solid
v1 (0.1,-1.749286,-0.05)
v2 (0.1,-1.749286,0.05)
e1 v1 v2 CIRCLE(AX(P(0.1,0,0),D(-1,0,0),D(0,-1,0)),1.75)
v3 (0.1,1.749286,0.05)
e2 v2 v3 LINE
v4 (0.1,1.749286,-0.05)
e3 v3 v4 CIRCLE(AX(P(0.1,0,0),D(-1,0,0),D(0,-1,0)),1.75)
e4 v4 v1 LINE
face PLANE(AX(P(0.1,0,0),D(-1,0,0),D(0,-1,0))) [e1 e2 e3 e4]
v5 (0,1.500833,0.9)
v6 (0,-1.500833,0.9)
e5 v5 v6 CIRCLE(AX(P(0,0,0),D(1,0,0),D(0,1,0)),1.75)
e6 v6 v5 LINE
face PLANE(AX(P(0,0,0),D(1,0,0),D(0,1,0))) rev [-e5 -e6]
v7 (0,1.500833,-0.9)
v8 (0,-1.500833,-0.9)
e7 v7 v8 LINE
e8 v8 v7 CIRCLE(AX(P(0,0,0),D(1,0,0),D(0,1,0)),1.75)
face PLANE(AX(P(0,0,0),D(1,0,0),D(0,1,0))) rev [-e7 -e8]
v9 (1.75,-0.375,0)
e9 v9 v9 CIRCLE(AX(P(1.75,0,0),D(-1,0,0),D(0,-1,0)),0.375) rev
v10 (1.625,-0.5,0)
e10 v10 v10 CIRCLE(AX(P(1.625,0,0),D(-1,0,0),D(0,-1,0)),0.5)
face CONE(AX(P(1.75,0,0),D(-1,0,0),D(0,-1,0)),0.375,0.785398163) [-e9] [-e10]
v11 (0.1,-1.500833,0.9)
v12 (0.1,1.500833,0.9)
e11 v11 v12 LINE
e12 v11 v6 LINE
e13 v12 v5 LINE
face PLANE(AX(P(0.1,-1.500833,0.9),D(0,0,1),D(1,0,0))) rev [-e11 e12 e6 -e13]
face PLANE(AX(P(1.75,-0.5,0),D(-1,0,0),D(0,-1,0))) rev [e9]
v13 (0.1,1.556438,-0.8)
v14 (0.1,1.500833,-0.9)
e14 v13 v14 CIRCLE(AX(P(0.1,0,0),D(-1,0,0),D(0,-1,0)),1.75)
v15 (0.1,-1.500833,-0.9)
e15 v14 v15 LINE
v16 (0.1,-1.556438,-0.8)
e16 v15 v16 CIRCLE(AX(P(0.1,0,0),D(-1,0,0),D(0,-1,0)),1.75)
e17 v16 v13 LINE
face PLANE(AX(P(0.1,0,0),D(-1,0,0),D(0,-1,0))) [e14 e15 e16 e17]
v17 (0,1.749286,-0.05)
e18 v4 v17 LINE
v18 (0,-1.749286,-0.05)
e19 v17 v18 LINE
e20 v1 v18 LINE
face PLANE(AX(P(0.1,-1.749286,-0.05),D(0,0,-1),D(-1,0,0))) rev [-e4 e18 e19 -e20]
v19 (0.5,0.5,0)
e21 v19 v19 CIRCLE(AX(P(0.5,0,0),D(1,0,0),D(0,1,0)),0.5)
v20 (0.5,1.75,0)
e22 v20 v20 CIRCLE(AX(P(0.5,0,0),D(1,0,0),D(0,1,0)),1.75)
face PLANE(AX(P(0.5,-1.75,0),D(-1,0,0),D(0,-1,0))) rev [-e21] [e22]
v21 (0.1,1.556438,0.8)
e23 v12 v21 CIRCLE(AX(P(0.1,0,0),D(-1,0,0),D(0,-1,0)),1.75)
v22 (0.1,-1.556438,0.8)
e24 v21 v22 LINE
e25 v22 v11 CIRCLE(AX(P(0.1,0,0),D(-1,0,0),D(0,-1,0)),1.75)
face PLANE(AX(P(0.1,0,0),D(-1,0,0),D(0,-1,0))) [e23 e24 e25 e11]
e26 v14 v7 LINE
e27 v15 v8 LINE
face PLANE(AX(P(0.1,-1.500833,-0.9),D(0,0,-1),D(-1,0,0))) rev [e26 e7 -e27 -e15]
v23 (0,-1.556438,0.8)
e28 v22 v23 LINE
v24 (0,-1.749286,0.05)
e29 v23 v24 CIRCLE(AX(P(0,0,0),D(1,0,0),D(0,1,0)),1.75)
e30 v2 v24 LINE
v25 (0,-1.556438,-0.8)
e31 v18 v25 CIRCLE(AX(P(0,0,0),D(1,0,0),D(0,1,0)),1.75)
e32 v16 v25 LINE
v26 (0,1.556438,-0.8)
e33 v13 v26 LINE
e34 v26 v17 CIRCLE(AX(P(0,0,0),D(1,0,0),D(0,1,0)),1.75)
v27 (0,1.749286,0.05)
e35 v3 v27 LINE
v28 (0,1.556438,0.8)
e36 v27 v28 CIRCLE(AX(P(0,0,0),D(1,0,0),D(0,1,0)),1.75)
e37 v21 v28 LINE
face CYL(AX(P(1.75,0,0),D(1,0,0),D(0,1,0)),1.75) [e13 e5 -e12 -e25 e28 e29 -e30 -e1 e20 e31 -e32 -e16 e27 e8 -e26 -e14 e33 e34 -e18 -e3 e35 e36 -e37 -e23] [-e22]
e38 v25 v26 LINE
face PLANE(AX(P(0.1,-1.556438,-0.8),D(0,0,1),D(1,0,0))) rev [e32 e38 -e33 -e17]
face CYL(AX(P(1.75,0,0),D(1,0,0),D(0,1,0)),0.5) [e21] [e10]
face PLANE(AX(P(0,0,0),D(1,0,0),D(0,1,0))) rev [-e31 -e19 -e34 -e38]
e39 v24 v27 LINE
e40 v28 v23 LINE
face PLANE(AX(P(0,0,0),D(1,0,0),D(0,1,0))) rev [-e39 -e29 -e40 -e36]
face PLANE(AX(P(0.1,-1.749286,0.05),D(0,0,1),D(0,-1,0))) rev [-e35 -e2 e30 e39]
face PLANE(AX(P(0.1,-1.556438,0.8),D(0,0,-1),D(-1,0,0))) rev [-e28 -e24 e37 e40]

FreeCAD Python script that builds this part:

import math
import FreeCAD as App
import Part
import Sketcher


def edges_at(feature, points):
    """Names of the edges that pass closest to the given points."""
    edges = feature.Shape.Edges
    near = lambda p: min(range(len(edges)), key=lambda i: edges[i].distToShape(Part.Vertex(*p))[0])
    return sorted({f"Edge{near(p) + 1}" for p in points})

doc = App.newDocument("Part")
body = doc.addObject("PartDesign::Body", "Body")

sketch1 = body.newObject("Sketcher::SketchObject", "Sketch")
sketch1.AttachmentSupport = (doc.getObject("XY_Plane"), [""])
sketch1.MapMode = "FlatFace"
sketch1.addGeometry(Part.LineSegment(App.Vector(0, 0, 0), App.Vector(0, -1.8, 0)), False)
sketch1.addGeometry(Part.LineSegment(App.Vector(0, -1.8, 0), App.Vector(0.5, -1.8, 0)), False)
sketch1.addGeometry(Part.LineSegment(App.Vector(0.5, -1.8, 0), App.Vector(0.5, -0.5, 0)), False)
sketch1.addGeometry(Part.LineSegment(App.Vector(0.5, -0.5, 0), App.Vector(1.8, -0.5, 0)), False)
sketch1.addGeometry(Part.LineSegment(App.Vector(1.8, -0.5, 0), App.Vector(1.8, 0, 0)), False)
sketch1.addGeometry(Part.LineSegment(App.Vector(1.8, 0, 0), App.Vector(0, 0, 0)), False)
sketch1.addConstraint(Sketcher.Constraint("Coincident", 0, 2, 1, 1))
sketch1.addConstraint(Sketcher.Constraint("Coincident", 1, 2, 2, 1))
sketch1.addConstraint(Sketcher.Constraint("Coincident", 2, 2, 3, 1))
sketch1.addConstraint(Sketcher.Constraint("Coincident", 3, 2, 4, 1))
sketch1.addConstraint(Sketcher.Constraint("Coincident", 4, 2, 5, 1))
sketch1.addConstraint(Sketcher.Constraint("Coincident", 5, 2, 0, 1))
sketch1.addConstraint(Sketcher.Constraint("Vertical", 0))
sketch1.addConstraint(Sketcher.Constraint("Horizontal", 1))
sketch1.addConstraint(Sketcher.Constraint("Vertical", 2))
sketch1.addConstraint(Sketcher.Constraint("Horizontal", 3))
sketch1.addConstraint(Sketcher.Constraint("Vertical", 4))
sketch1.addConstraint(Sketcher.Constraint("Horizontal", 5))
sketch1.addConstraint(Sketcher.Constraint("Coincident", 5, 2, -1, 1))
sketch1.addConstraint(Sketcher.Constraint("Equal", 5, 0))
sketch1.addConstraint(Sketcher.Constraint("Equal", 3, 2))
sketch1.addConstraint(Sketcher.Constraint("DistanceX", 1, 1, 1, 2, 0.5))
sketch1.addConstraint(Sketcher.Constraint("DistanceX", 3, 1, 3, 2, 1.25))
revolution = body.newObject("PartDesign::Revolution", "Revolution")
revolution.Profile = sketch1
revolution.ReferenceAxis = (sketch1, ["H_Axis"])
revolution.Angle = 360
doc.recompute()

chamfer = body.newObject("PartDesign::Chamfer", "Chamfer")
chamfer.Base = (revolution, edges_at(revolution, [(1.75, 0.5, 0)]))
chamfer.Size = 0.125

sketch2 = body.newObject("Sketcher::SketchObject", "Sketch001")
sketch2.AttachmentSupport = (doc.getObject("YZ_Plane"), [""])
sketch2.MapMode = "FlatFace"
sketch2.addGeometry(Part.LineSegment(App.Vector(1.75, -0.05, 0), App.Vector(-1.75, -0.05, 0)), False)
sketch2.addGeometry(Part.ArcOfCircle(Part.Circle(App.Vector(0, 0, 0), App.Vector(0, 0, 1), 1.75), math.radians(178.36), math.radians(181.64)), False)
sketch2.addGeometry(Part.LineSegment(App.Vector(-1.75, 0.05, 0), App.Vector(1.75, 0.05, 0)), False)
sketch2.addGeometry(Part.ArcOfCircle(Part.Circle(App.Vector(0, 0, 0), App.Vector(0, 0, 1), 1.75), math.radians(-1.64), math.radians(1.64)), False)
sketch2.addGeometry(Part.LineSegment(App.Vector(1.56, 0.8, 0), App.Vector(-1.56, 0.8, 0)), False)
sketch2.addGeometry(Part.ArcOfCircle(Part.Circle(App.Vector(0, 0, 0), App.Vector(0, 0, 1), 1.75), math.radians(149.05), math.radians(152.8)), False)
sketch2.addGeometry(Part.LineSegment(App.Vector(-1.5, 0.9, 0), App.Vector(1.5, 0.9, 0)), False)
sketch2.addGeometry(Part.ArcOfCircle(Part.Circle(App.Vector(0, 0, 0), App.Vector(0, 0, 1), 1.75), math.radians(27.2), math.radians(30.95)), False)
sketch2.addGeometry(Part.LineSegment(App.Vector(1.5, -0.9, 0), App.Vector(-1.5, -0.9, 0)), False)
sketch2.addGeometry(Part.ArcOfCircle(Part.Circle(App.Vector(0, 0, 0), App.Vector(0, 0, 1), 1.75), math.radians(-152.8), math.radians(-149.05)), False)
sketch2.addGeometry(Part.LineSegment(App.Vector(-1.56, -0.8, 0), App.Vector(1.56, -0.8, 0)), False)
sketch2.addGeometry(Part.ArcOfCircle(Part.Circle(App.Vector(0, 0, 0), App.Vector(0, 0, 1), 1.75), math.radians(-30.95), math.radians(-27.2)), False)
sketch2.addConstraint(Sketcher.Constraint("Coincident", 0, 2, 1, 2))
sketch2.addConstraint(Sketcher.Constraint("Coincident", 1, 1, 2, 1))
sketch2.addConstraint(Sketcher.Constraint("Coincident", 2, 2, 3, 2))
sketch2.addConstraint(Sketcher.Constraint("Coincident", 3, 1, 0, 1))
sketch2.addConstraint(Sketcher.Constraint("Coincident", 4, 2, 5, 2))
sketch2.addConstraint(Sketcher.Constraint("Coincident", 5, 1, 6, 1))
sketch2.addConstraint(Sketcher.Constraint("Coincident", 6, 2, 7, 2))
sketch2.addConstraint(Sketcher.Constraint("Coincident", 7, 1, 4, 1))
sketch2.addConstraint(Sketcher.Constraint("Coincident", 8, 2, 9, 2))
sketch2.addConstraint(Sketcher.Constraint("Coincident", 9, 1, 10, 1))
sketch2.addConstraint(Sketcher.Constraint("Coincident", 10, 2, 11, 2))
sketch2.addConstraint(Sketcher.Constraint("Coincident", 11, 1, 8, 1))
sketch2.addConstraint(Sketcher.Constraint("Horizontal", 0))
sketch2.addConstraint(Sketcher.Constraint("Horizontal", 2))
sketch2.addConstraint(Sketcher.Constraint("Horizontal", 4))
sketch2.addConstraint(Sketcher.Constraint("Horizontal", 6))
sketch2.addConstraint(Sketcher.Constraint("Horizontal", 8))
sketch2.addConstraint(Sketcher.Constraint("Horizontal", 10))
sketch2.addConstraint(Sketcher.Constraint("Coincident", 1, 3, -1, 1))
sketch2.addConstraint(Sketcher.Constraint("Coincident", 3, 3, -1, 1))
sketch2.addConstraint(Sketcher.Constraint("Coincident", 5, 3, -1, 1))
sketch2.addConstraint(Sketcher.Constraint("Coincident", 7, 3, -1, 1))
sketch2.addConstraint(Sketcher.Constraint("Coincident", 9, 3, -1, 1))
sketch2.addConstraint(Sketcher.Constraint("Coincident", 11, 3, -1, 1))
sketch2.addConstraint(Sketcher.Constraint("Equal", 1, 3))
sketch2.addConstraint(Sketcher.Constraint("Equal", 3, 5))
sketch2.addConstraint(Sketcher.Constraint("Equal", 5, 7))
sketch2.addConstraint(Sketcher.Constraint("Equal", 7, 9))
sketch2.addConstraint(Sketcher.Constraint("Equal", 9, 11))
sketch2.addConstraint(Sketcher.Constraint("Vertical", 0, 2, 1, 1))
sketch2.addConstraint(Sketcher.Constraint("Vertical", 5, 1, 8, 2))
sketch2.addConstraint(Sketcher.Constraint("Vertical", 4, 2, 9, 1))
sketch2.addConstraint(Sketcher.Constraint("Radius", 1, 1.749999))
sketch2.addConstraint(Sketcher.Constraint("DistanceY", -1, 1, 4, 2, 0.8))
sketch2.addConstraint(Sketcher.Constraint("DistanceY", -1, 1, 5, 1, 0.9))
sketch2.addConstraint(Sketcher.Constraint("DistanceY", 0, 2, 1, 1, 0.1))
pocket1 = body.newObject("PartDesign::Pocket", "Pocket")
pocket1.Profile = sketch2
pocket1.Length = 0.1
pocket1.Reversed = True

doc.recompute()
